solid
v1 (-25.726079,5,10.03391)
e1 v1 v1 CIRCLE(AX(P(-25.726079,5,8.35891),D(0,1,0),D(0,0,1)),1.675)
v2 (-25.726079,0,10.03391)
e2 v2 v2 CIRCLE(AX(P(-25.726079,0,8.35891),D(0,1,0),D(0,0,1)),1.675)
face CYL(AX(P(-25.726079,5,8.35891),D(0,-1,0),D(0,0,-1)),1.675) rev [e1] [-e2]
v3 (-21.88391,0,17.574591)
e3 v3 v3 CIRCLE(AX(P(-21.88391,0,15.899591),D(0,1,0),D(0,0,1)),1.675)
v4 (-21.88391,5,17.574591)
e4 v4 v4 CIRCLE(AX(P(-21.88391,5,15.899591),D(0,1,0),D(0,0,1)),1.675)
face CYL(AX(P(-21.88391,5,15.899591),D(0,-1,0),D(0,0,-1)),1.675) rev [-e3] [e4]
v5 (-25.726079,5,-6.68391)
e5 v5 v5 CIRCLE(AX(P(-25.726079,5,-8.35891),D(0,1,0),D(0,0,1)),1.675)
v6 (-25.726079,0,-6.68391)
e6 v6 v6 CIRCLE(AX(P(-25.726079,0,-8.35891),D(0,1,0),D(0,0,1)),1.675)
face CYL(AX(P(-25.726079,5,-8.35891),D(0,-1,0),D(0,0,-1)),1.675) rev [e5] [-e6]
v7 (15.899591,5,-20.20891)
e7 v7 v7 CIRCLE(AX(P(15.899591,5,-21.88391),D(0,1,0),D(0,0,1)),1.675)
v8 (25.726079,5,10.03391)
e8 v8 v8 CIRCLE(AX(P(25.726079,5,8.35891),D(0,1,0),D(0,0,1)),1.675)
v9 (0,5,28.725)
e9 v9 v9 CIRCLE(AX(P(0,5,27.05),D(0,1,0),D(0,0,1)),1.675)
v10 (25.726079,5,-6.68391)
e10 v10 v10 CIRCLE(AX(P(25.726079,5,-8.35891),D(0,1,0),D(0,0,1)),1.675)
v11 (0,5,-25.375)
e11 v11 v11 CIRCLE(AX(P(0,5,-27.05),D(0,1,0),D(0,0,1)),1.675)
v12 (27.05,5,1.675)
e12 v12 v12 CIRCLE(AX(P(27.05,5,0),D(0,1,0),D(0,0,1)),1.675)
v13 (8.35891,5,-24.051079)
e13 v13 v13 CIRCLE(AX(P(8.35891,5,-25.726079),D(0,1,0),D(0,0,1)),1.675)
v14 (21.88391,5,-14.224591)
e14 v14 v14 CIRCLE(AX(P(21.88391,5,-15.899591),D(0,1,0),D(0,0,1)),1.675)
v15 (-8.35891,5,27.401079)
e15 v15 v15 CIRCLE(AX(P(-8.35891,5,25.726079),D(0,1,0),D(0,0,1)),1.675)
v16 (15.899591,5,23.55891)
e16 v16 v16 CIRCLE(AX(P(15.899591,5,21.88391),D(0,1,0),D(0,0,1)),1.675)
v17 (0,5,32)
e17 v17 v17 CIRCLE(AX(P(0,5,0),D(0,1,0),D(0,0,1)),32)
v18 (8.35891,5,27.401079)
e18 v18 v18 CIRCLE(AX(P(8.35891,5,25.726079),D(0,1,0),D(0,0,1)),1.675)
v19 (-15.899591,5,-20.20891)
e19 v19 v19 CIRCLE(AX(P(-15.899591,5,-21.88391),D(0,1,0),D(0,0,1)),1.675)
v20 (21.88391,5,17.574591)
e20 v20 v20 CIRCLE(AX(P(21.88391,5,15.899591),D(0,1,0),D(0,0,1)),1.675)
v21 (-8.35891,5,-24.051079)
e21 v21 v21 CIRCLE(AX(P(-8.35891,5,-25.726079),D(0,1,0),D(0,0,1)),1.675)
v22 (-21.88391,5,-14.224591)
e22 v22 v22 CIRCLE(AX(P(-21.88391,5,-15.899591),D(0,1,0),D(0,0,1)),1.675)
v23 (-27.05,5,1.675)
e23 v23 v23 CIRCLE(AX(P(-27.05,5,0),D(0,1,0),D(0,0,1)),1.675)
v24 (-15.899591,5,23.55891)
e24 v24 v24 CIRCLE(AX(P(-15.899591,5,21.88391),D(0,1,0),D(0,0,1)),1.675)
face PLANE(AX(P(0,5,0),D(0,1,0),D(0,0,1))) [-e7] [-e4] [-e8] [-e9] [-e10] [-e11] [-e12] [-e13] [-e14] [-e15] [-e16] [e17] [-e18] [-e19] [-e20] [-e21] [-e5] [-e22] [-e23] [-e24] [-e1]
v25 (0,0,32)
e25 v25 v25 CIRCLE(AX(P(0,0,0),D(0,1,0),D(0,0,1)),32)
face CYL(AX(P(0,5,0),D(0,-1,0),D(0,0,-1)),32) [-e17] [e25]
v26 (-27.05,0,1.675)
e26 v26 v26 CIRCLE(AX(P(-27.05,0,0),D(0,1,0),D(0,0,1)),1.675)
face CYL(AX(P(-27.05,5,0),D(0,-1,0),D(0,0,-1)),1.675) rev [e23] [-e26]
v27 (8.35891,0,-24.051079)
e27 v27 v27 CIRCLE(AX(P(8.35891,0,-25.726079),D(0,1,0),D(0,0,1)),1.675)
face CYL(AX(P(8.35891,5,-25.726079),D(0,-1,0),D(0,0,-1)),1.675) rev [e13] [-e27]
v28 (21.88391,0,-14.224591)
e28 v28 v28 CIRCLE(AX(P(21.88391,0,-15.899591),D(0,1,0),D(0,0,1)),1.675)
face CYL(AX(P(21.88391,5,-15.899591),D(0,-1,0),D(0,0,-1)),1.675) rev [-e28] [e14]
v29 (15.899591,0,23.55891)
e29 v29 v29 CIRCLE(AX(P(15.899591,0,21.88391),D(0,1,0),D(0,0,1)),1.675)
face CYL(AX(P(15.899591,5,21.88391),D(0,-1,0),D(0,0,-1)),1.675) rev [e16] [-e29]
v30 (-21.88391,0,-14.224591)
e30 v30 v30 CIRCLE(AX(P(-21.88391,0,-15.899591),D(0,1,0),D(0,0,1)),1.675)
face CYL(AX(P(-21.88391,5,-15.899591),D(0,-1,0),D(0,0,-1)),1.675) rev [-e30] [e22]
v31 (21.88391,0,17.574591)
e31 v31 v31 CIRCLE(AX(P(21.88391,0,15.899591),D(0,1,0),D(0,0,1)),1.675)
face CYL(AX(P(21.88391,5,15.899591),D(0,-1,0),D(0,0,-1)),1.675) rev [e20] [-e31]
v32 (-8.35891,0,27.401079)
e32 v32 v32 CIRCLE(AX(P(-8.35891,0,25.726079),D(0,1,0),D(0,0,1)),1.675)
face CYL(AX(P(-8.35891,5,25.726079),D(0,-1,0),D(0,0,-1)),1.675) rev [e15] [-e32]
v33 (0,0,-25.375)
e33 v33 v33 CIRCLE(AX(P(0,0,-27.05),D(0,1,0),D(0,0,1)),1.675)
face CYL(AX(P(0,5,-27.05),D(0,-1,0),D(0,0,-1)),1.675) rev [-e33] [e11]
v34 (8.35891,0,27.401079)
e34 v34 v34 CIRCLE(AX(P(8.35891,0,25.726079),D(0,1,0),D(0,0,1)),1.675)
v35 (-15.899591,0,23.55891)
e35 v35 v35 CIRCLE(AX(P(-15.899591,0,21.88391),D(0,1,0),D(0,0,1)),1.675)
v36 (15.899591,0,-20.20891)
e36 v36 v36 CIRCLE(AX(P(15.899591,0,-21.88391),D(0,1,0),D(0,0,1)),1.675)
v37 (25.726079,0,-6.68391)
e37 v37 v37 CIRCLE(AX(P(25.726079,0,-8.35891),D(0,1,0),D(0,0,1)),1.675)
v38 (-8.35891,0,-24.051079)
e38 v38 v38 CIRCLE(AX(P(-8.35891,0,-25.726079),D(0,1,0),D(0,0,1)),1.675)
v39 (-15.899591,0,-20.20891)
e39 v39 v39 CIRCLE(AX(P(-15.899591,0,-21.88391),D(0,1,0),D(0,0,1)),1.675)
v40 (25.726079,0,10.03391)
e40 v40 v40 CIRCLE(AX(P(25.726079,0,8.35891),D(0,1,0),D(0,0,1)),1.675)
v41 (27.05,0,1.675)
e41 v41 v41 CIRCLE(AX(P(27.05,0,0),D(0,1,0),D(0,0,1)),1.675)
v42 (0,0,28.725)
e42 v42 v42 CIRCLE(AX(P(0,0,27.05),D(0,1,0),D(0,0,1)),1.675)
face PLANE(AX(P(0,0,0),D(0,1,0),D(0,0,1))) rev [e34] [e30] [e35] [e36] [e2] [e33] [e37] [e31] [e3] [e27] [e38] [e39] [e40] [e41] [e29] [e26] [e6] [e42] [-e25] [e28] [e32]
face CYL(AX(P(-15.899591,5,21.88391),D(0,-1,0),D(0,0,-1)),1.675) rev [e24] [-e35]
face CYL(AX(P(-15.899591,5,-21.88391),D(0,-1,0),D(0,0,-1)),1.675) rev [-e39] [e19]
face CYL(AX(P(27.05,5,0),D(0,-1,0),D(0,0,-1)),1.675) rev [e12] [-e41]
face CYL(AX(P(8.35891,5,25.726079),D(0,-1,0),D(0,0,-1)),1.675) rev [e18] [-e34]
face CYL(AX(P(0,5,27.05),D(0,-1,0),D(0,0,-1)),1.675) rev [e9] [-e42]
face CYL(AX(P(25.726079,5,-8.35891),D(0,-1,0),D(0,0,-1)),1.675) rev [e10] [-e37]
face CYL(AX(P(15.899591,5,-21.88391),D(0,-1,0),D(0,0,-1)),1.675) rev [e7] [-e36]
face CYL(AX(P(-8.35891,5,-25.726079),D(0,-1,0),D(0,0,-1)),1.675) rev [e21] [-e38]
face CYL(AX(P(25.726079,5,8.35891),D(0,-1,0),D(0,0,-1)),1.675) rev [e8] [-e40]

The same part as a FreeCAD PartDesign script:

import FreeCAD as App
import Part
import Sketcher

V = App.Vector

doc = App.newDocument("Part")
body = doc.addObject("PartDesign::Body", "Body")

# Sketch on XZ plane
sketch1 = body.newObject("Sketcher::SketchObject", "Sketch")
sketch1.AttachmentSupport = (doc.getObject("XZ_Plane"), [""])
sketch1.MapMode = "FlatFace"
sketch1.addGeometry(Part.Circle(V(0, 0, 0), V(0, 0, 1), 32), False)
sketch1.addGeometry(Part.Circle(V(-21.9, -15.9, 0), V(0, 0, 1), 1.7), False)
sketch1.addGeometry(Part.Circle(V(-15.9, -21.9, 0), V(0, 0, 1), 1.7), False)
sketch1.addGeometry(Part.Circle(V(-25.7, -8.4, 0), V(0, 0, 1), 1.7), False)
sketch1.addGeometry(Part.Circle(V(-8.4, -25.7, 0), V(0, 0, 1), 1.7), False)
sketch1.addGeometry(Part.Circle(V(0, -27.1, 0), V(0, 0, 1), 1.7), False)
sketch1.addGeometry(Part.Circle(V(-27.1, 0, 0), V(0, 0, 1), 1.7), False)
sketch1.addGeometry(Part.Circle(V(-25.7, 8.4, 0), V(0, 0, 1), 1.7), False)
sketch1.addGeometry(Part.Circle(V(-21.9, 15.9, 0), V(0, 0, 1), 1.7), False)
sketch1.addGeometry(Part.Circle(V(-15.9, 21.9, 0), V(0, 0, 1), 1.7), False)
sketch1.addGeometry(Part.Circle(V(-8.4, 25.7, 0), V(0, 0, 1), 1.7), False)
sketch1.addGeometry(Part.Circle(V(8.4, -25.7, 0), V(0, 0, 1), 1.7), False)
sketch1.addGeometry(Part.Circle(V(15.9, -21.9, 0), V(0, 0, 1), 1.7), False)
sketch1.addGeometry(Part.Circle(V(21.9, -15.9, 0), V(0, 0, 1), 1.7), False)
sketch1.addGeometry(Part.Circle(V(25.7, -8.4, 0), V(0, 0, 1), 1.7), False)
sketch1.addGeometry(Part.Circle(V(27.1, 0, 0), V(0, 0, 1), 1.7), False)
sketch1.addGeometry(Part.Circle(V(0, 27.1, 0), V(0, 0, 1), 1.7), False)
sketch1.addGeometry(Part.Circle(V(8.4, 25.7, 0), V(0, 0, 1), 1.7), False)
sketch1.addGeometry(Part.Circle(V(25.7, 8.4, 0), V(0, 0, 1), 1.7), False)
sketch1.addGeometry(Part.Circle(V(15.9, 21.9, 0), V(0, 0, 1), 1.7), False)
sketch1.addGeometry(Part.Circle(V(21.9, 15.9, 0), V(0, 0, 1), 1.7), False)
sketch1.addConstraint(Sketcher.Constraint("Coincident", 0, 3, -1, 1))
sketch1.addConstraint(Sketcher.Constraint("Equal", 1, 2))
sketch1.addConstraint(Sketcher.Constraint("Equal", 2, 3))
sketch1.addConstraint(Sketcher.Constraint("Equal", 3, 4))
sketch1.addConstraint(Sketcher.Constraint("Equal", 4, 5))
sketch1.addConstraint(Sketcher.Constraint("Equal", 5, 6))
sketch1.addConstraint(Sketcher.Constraint("Equal", 6, 7))
sketch1.addConstraint(Sketcher.Constraint("Equal", 7, 8))
sketch1.addConstraint(Sketcher.Constraint("Equal", 8, 9))
sketch1.addConstraint(Sketcher.Constraint("Equal", 9, 10))
sketch1.addConstraint(Sketcher.Constraint("Equal", 10, 11))
sketch1.addConstraint(Sketcher.Constraint("Equal", 11, 12))
sketch1.addConstraint(Sketcher.Constraint("Equal", 12, 13))
sketch1.addConstraint(Sketcher.Constraint("Equal", 13, 14))
sketch1.addConstraint(Sketcher.Constraint("Equal", 14, 15))
sketch1.addConstraint(Sketcher.Constraint("Equal", 15, 16))
sketch1.addConstraint(Sketcher.Constraint("Equal", 16, 17))
sketch1.addConstraint(Sketcher.Constraint("Equal", 17, 18))
sketch1.addConstraint(Sketcher.Constraint("Equal", 18, 19))
sketch1.addConstraint(Sketcher.Constraint("Equal", 19, 20))
sketch1.addConstraint(Sketcher.Constraint("Symmetric", 10, 3, 11, 3, -1, 1))
sketch1.addConstraint(Sketcher.Constraint("Symmetric", 9, 3, 12, 3, -1, 1))
sketch1.addConstraint(Sketcher.Constraint("Symmetric", 8, 3, 13, 3, -1, 1))
sketch1.addConstraint(Sketcher.Constraint("Symmetric", 7, 3, 14, 3, -1, 1))
sketch1.addConstraint(Sketcher.Constraint("Symmetric", 6, 3, 15, 3, -1, 1))
sketch1.addConstraint(Sketcher.Constraint("Symmetric", 5, 3, 16, 3, -1, 1))
sketch1.addConstraint(Sketcher.Constraint("Symmetric", 4, 3, 17, 3, -1, 1))
sketch1.addConstraint(Sketcher.Constraint("Symmetric", 3, 3, 18, 3, -1, 1))
sketch1.addConstraint(Sketcher.Constraint("Symmetric", 2, 3, 19, 3, -1, 1))
sketch1.addConstraint(Sketcher.Constraint("Symmetric", 1, 3, 20, 3, -1, 1))
sketch1.addConstraint(Sketcher.Constraint("Symmetric", 4, 3, 11, 3, -2))
sketch1.addConstraint(Sketcher.Constraint("Symmetric", 2, 3, 12, 3, -2))
sketch1.addConstraint(Sketcher.Constraint("Symmetric", 1, 3, 13, 3, -2))
sketch1.addConstraint(Sketcher.Constraint("Symmetric", 3, 3, 14, 3, -2))
sketch1.addConstraint(Sketcher.Constraint("PointOnObject", 5, 3, -2))
sketch1.addConstraint(Sketcher.Constraint("PointOnObject", 6, 3, -1))
sketch1.addConstraint(Sketcher.Constraint("Diameter", 0, 64.0))
sketch1.addConstraint(Sketcher.Constraint("Diameter", 1, 3.35))
sketch1.addConstraint(Sketcher.Constraint("DistanceY", 5, 3, -1, 1, 27.05))
sketch1.addConstraint(Sketcher.Constraint("DistanceX", 6, 3, -1, 1, 27.05))
sketch1.addConstraint(Sketcher.Constraint("DistanceY", 2, 3, 3, 3, 13.525))
sketch1.addConstraint(Sketcher.Constraint("DistanceX", 1, 3, 4, 3, 13.525))
sketch1.addConstraint(Sketcher.Constraint("DistanceY", 1, 3, 7, 3, 24.258501))
sketch1.addConstraint(Sketcher.Constraint("DistanceX", 2, 3, 11, 3, 24.258501))
sketch1.addConstraint(Sketcher.Constraint("DistanceX", 1, 3, -1, 1, 21.88391))
sketch1.addConstraint(Sketcher.Constraint("DistanceY", 1, 3, -1, 1, 15.899591))
sketch1.addConstraint(Sketcher.Constraint("DistanceX", 3, 3, -1, 1, 25.726079))
sketch1.addConstraint(Sketcher.Constraint("DistanceY", 4, 3, -1, 1, 25.726079))
pad1 = body.newObject("PartDesign::Pad", "Pad")
pad1.Profile = sketch1
pad1.Length = 5
pad1.Reversed = True

doc.recompute()
